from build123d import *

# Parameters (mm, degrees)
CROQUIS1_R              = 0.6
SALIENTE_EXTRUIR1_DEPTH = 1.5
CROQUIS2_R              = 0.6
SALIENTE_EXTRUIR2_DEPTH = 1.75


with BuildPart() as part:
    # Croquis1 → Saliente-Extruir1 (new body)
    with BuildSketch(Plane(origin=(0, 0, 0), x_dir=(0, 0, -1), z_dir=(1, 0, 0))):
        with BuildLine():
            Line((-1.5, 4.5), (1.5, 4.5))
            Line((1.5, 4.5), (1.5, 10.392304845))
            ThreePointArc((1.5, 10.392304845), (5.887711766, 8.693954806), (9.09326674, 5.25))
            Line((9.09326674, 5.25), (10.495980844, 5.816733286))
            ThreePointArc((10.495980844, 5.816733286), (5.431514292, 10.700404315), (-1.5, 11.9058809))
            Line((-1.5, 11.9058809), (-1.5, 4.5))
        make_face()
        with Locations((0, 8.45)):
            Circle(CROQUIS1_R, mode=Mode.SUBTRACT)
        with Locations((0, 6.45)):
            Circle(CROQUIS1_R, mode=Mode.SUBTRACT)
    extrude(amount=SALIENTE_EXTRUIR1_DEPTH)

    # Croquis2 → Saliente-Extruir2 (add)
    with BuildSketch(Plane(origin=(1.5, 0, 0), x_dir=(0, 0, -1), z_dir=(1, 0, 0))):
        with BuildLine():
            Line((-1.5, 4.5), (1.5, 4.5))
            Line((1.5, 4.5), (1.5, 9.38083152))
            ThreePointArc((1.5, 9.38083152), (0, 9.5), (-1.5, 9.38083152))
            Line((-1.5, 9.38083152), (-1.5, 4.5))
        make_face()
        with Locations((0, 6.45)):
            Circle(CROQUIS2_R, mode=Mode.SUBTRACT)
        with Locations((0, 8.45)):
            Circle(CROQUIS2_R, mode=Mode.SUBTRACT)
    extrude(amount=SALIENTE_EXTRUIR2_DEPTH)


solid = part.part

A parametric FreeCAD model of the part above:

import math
import FreeCAD as App
import Part
import Sketcher

V = App.Vector
Q = App.Units.Quantity

doc = App.newDocument("Part")
body = doc.addObject("PartDesign::Body", "Body")

# Sketch on YZ plane
sketch1 = body.newObject("Sketcher::SketchObject", "Sketch")
sketch1.AttachmentSupport = (doc.getObject("YZ_Plane"), [""])
sketch1.MapMode = "FlatFace"
sketch1.addGeometry([
    Part.LineSegment(V(4.5, 1.5, 0), V(4.5, -1.5, 0)),  # 0
    Part.LineSegment(V(4.5, -1.5, 0), V(10.4, -1.5, 0)),  # 1
    Part.ArcOfCircle(Part.Circle(V(0, 0, 0), V(0, 0, 1), 10.5), math.radians(-60), math.radians(-8)),  # 2
    Part.LineSegment(V(5.2, -9.1, 0), V(5.8, -10.5, 0)),  # 3
    Part.ArcOfCircle(Part.Circle(V(0, 0, 0), V(0, 0, 1), 12), math.radians(-61), math.radians(7)),  # 4
    Part.LineSegment(V(11.9, 1.5, 0), V(4.5, 1.5, 0)),  # 5
    Part.Circle(V(6.5, 0, 0), V(0, 0, 1), 0.6),  # 6
    Part.Circle(V(8.4, 0, 0), V(0, 0, 1), 0.6),  # 7
], False)
sketch1.addConstraint([
    Sketcher.Constraint("Coincident", 0, 2, 1, 1),
    Sketcher.Constraint("Coincident", 1, 2, 2, 2),
    Sketcher.Constraint("Coincident", 2, 1, 3, 1),
    Sketcher.Constraint("Coincident", 3, 2, 4, 1),
    Sketcher.Constraint("Coincident", 4, 2, 5, 1),
    Sketcher.Constraint("Coincident", 5, 2, 0, 1),
    Sketcher.Constraint("Vertical", 0),
    Sketcher.Constraint("Horizontal", 1),
    Sketcher.Constraint("Horizontal", 5),
    Sketcher.Constraint("Coincident", 2, 3, -1, 1),
    Sketcher.Constraint("Coincident", 4, 3, -1, 1),
    Sketcher.Constraint("Equal", 6, 7),
    Sketcher.Constraint("PointOnObject", 6, 3, -1),
    Sketcher.Constraint("PointOnObject", 7, 3, -1),
    Sketcher.Constraint("Radius", 4, 12.0),
    Sketcher.Constraint("Diameter", 6, 1.2),
    Sketcher.Constraint("Radius", 2, 10.5),
    Sketcher.Constraint("DistanceY", 0, 2, 0, 1, 3.0),
    Sketcher.Constraint("Angle", 3, Q("-68 deg")),
    Sketcher.Constraint("DistanceX", 6, 3, 7, 3, 2.0),
    Sketcher.Constraint("DistanceX", -1, 1, 0, 2, 4.5),
    Sketcher.Constraint("DistanceY", 0, 2, -1, 1, 1.5),
    Sketcher.Constraint("DistanceX", 2, 1, 6, 3, 1.2),
    Sketcher.Constraint("DistanceX", -1, 1, 6, 3, 6.45),
])
pad1 = body.newObject("PartDesign::Pad", "Pad")
pad1.Profile = sketch1
pad1.Length = 1.5

# Sketch on YZ plane
sketch2 = body.newObject("Sketcher::SketchObject", "Sketch001")
sketch2.AttachmentSupport = (doc.getObject("YZ_Plane"), [""])
sketch2.MapMode = "FlatFace"
sketch2.AttachmentOffset = App.Placement(V(0, 0, 1.5), App.Rotation())
sketch2.addGeometry([
    Part.LineSegment(V(4.5, 1.5, 0), V(4.5, -1.5, 0)),  # 0
    Part.LineSegment(V(4.5, -1.5, 0), V(9.4, -1.5, 0)),  # 1
    Part.ArcOfCircle(Part.Circle(V(0, 0, 0), V(0, 0, 1), 9.5), math.radians(-9.08), math.radians(9.08)),  # 2
    Part.LineSegment(V(9.4, 1.5, 0), V(4.5, 1.5, 0)),  # 3
    Part.Circle(V(6.5, 0, 0), V(0, 0, 1), 0.6),  # 4
    Part.Circle(V(8.4, 0, 0), V(0, 0, 1), 0.6),  # 5
], False)
sketch2.addConstraint([
    Sketcher.Constraint("Coincident", 0, 2, 1, 1),
    Sketcher.Constraint("Coincident", 1, 2, 2, 1),
    Sketcher.Constraint("Coincident", 2, 2, 3, 1),
    Sketcher.Constraint("Coincident", 3, 2, 0, 1),
    Sketcher.Constraint("Vertical", 0),
    Sketcher.Constraint("Horizontal", 1),
    Sketcher.Constraint("Horizontal", 3),
    Sketcher.Constraint("Coincident", 2, 3, -1, 1),
    Sketcher.Constraint("Equal", 4, 5),
    Sketcher.Constraint("PointOnObject", 4, 3, -1),
    Sketcher.Constraint("PointOnObject", 5, 3, -1),
    Sketcher.Constraint("Vertical", 1, 2, 2, 2),
    Sketcher.Constraint("Diameter", 4, 1.2),
    Sketcher.Constraint("Radius", 2, 9.5),
    Sketcher.Constraint("DistanceY", 0, 2, 0, 1, 3.0),
    Sketcher.Constraint("DistanceX", 4, 3, 5, 3, 2.0),
    Sketcher.Constraint("DistanceX", -1, 1, 0, 2, 4.5),
    Sketcher.Constraint("DistanceX", -1, 1, 4, 3, 6.45),
])
pad2 = body.newObject("PartDesign::Pad", "Pad001")
pad2.Profile = sketch2
pad2.Length = 1.75

doc.recompute()
